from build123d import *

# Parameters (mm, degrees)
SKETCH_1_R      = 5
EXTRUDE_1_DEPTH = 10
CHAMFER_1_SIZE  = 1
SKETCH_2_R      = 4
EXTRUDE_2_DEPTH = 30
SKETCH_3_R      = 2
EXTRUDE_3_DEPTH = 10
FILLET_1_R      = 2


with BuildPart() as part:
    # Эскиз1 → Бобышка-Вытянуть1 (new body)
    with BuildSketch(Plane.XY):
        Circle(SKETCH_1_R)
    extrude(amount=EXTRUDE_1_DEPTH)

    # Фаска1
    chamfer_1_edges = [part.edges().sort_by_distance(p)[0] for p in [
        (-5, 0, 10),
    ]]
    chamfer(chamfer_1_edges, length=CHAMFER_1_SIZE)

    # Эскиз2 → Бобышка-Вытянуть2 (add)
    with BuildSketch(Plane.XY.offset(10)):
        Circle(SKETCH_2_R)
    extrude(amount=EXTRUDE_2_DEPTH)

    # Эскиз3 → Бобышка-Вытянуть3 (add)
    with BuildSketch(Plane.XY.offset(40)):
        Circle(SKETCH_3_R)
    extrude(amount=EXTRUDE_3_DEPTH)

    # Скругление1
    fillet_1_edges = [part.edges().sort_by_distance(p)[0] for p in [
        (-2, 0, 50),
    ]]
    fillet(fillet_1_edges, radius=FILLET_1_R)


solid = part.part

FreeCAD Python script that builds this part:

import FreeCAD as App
import Part
import Sketcher

V = App.Vector
Q = App.Units.Quantity


def edges_at(feature, points):
    """Names of the edges that pass closest to the given points."""
    edges = feature.Shape.Edges
    near = lambda p: min(range(len(edges)), key=lambda i: edges[i].distToShape(Part.Vertex(*p))[0])
    return sorted({f"Edge{near(p) + 1}" for p in points})

doc = App.newDocument("Part")
body = doc.addObject("PartDesign::Body", "Body")

# Sketch on XY plane
sketch1 = doc.addObject("Sketcher::SketchObject", "Sketch")
body.addObject(sketch1)
sketch1.AttachmentSupport = (doc.XY_Plane, [""])
sketch1.MapMode = "FlatFace"
sketch1.addGeometry(Part.Circle(V(0, 0, 0), V(0, 0, 1), 5), False)
sketch1.addConstraint([
    Sketcher.Constraint("Coincident", 0, 3, -1, 1),
    Sketcher.Constraint("Diameter", 0, Q("10 mm")),
])
pad1 = doc.addObject("PartDesign::Pad", "Pad")
body.addObject(pad1)
pad1.Profile = sketch1
pad1.Length = 10
doc.recompute()

chamfer = doc.addObject("PartDesign::Chamfer", "Chamfer")
body.addObject(chamfer)
chamfer.Base = (pad1, edges_at(pad1, [(-5, 0, 10)]))
chamfer.Size = 1

# Sketch on XY plane
sketch2 = doc.addObject("Sketcher::SketchObject", "Sketch001")
body.addObject(sketch2)
sketch2.AttachmentSupport = (doc.XY_Plane, [""])
sketch2.MapMode = "FlatFace"
sketch2.AttachmentOffset = App.Placement(V(0, 0, 10), App.Rotation())
sketch2.addGeometry(Part.Circle(V(0, 0, 0), V(0, 0, 1), 4), False)
sketch2.addConstraint([
    Sketcher.Constraint("Coincident", 0, 3, -1, 1),
    Sketcher.Constraint("Diameter", 0, Q("8 mm")),
])
pad2 = doc.addObject("PartDesign::Pad", "Pad001")
body.addObject(pad2)
pad2.Profile = sketch2
pad2.Length = 30

# Sketch on XY plane
sketch3 = doc.addObject("Sketcher::SketchObject", "Sketch002")
body.addObject(sketch3)
sketch3.AttachmentSupport = (doc.XY_Plane, [""])
sketch3.MapMode = "FlatFace"
sketch3.AttachmentOffset = App.Placement(V(0, 0, 40), App.Rotation())
sketch3.addGeometry(Part.Circle(V(0, 0, 0), V(0, 0, 1), 2), False)
sketch3.addConstraint([
    Sketcher.Constraint("Coincident", 0, 3, -1, 1),
    Sketcher.Constraint("Diameter", 0, Q("4 mm")),
])
pad3 = doc.addObject("PartDesign::Pad", "Pad002")
body.addObject(pad3)
pad3.Profile = sketch3
pad3.Length = 10
doc.recompute()

fillet = doc.addObject("PartDesign::Fillet", "Fillet")
body.addObject(fillet)
fillet.Base = (pad3, edges_at(pad3, [(-2, 0, 50)]))
fillet.Radius = 2

doc.recompute()
